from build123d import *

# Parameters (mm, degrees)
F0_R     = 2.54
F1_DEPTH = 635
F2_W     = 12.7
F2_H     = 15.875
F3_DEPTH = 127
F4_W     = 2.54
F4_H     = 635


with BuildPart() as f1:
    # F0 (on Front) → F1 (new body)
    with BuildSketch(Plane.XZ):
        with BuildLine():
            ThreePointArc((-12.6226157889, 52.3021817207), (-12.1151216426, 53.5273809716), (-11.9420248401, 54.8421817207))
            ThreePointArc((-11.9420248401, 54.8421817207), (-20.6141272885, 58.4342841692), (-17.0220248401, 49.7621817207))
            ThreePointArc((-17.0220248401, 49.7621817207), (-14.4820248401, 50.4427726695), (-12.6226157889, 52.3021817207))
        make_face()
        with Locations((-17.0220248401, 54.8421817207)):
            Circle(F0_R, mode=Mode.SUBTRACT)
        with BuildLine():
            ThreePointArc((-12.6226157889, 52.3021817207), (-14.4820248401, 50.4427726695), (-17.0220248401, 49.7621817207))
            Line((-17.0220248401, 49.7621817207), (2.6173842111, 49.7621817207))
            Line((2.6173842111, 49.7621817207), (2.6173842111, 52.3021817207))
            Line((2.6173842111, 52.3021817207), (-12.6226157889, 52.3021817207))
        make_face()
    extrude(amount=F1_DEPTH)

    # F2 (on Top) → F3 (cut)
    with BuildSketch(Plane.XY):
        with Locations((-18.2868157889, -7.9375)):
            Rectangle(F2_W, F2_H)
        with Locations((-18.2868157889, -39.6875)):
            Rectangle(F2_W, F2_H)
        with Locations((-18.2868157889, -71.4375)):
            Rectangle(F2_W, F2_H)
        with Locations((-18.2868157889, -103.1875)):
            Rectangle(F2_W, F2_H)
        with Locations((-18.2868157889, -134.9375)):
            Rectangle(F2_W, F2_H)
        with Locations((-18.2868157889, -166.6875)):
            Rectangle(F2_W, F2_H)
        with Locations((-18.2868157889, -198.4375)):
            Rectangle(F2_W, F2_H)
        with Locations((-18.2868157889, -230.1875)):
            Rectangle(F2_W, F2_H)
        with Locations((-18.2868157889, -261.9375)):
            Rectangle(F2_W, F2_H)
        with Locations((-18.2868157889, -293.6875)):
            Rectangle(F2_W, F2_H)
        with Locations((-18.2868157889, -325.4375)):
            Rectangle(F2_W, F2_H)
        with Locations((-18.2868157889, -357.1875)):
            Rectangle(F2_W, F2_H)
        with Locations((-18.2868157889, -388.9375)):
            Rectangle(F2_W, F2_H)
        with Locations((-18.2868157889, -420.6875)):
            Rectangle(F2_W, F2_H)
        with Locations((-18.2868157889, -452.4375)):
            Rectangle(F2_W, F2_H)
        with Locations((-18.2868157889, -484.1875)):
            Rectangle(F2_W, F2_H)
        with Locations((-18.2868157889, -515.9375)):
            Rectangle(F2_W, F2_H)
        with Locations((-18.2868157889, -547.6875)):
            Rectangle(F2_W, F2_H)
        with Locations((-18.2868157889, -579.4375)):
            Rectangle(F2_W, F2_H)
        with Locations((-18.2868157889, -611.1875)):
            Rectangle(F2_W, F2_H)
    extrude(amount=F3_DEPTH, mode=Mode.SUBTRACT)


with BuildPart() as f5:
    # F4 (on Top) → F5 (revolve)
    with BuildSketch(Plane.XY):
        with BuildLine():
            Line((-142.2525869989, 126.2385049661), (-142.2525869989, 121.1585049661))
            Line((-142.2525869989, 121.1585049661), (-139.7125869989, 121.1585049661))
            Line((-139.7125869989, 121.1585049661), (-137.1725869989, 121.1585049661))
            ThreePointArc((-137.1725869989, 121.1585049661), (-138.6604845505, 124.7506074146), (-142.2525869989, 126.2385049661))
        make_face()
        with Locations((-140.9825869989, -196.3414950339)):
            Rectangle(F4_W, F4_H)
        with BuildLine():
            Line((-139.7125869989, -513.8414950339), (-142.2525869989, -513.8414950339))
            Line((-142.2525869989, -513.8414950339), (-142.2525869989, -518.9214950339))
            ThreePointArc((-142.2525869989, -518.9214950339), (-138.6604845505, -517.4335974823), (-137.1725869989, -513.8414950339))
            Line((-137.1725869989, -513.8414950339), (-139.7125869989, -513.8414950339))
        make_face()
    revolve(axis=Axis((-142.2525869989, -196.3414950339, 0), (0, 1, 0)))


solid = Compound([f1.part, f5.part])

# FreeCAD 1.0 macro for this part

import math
import FreeCAD as App
import Part
import Sketcher

V = App.Vector
Q = App.Units.Quantity


def add_polygon(sketch, points):
    """Adds a closed chain of lines whose ends are joined by coincident constraints."""
    first, n = sketch.GeometryCount, len(points)
    for a, b in zip(points, points[1:] + points[:1]):
        sketch.addGeometry(Part.LineSegment(App.Vector(*a, 0), App.Vector(*b, 0)), False)
    for i in range(n):
        sketch.addConstraint(Sketcher.Constraint("Coincident", first + i, 2, first + (i + 1) % n, 1))

doc = App.newDocument("Part")
body = doc.addObject("PartDesign::Body", "Body")

sketch1 = body.newObject("Sketcher::SketchObject", "Sketch")
sketch1.AttachmentSupport = (doc.getObject("XZ_Plane"), [""])
sketch1.MapMode = "FlatFace"
sketch1.addGeometry(Part.ArcOfCircle(Part.Circle(V(-17, 54.8, 0), V(0, 0, 1), 5.1), math.radians(-30), math.radians(0)), False)
sketch1.addGeometry(Part.ArcOfCircle(Part.Circle(V(-17, 54.8, 0), V(0, 0, 1), 5.1), math.radians(0), math.radians(270)), False)
sketch1.addGeometry(Part.LineSegment(V(-17, 49.8, 0), V(2.6, 49.8, 0)), False)
sketch1.addGeometry(Part.LineSegment(V(2.6, 49.8, 0), V(2.6, 52.3, 0)), False)
sketch1.addGeometry(Part.LineSegment(V(2.6, 52.3, 0), V(-12.6, 52.3, 0)), False)
sketch1.addGeometry(Part.Circle(V(-17, 54.8, 0), V(0, 0, 1), 2.5), False)
sketch1.addConstraint(Sketcher.Constraint("Tangent", 0, 2, 1, 1))
sketch1.addConstraint(Sketcher.Constraint("Tangent", 1, 2, 2, 1))
sketch1.addConstraint(Sketcher.Constraint("Coincident", 2, 2, 3, 1))
sketch1.addConstraint(Sketcher.Constraint("Coincident", 3, 2, 4, 1))
sketch1.addConstraint(Sketcher.Constraint("Coincident", 4, 2, 0, 1))
sketch1.addConstraint(Sketcher.Constraint("Horizontal", 2))
sketch1.addConstraint(Sketcher.Constraint("Vertical", 3))
sketch1.addConstraint(Sketcher.Constraint("Horizontal", 4))
sketch1.addConstraint(Sketcher.Constraint("Coincident", 5, 3, 0, 3))
sketch1.addConstraint(Sketcher.Constraint("Equal", 0, 1))
sketch1.addConstraint(Sketcher.Constraint("Horizontal", 5, 3, 0, 2))
sketch1.addConstraint(Sketcher.Constraint("Diameter", 5, Q("0.2 in")))
sketch1.addConstraint(Sketcher.Constraint("Radius", 0, Q("0.2 in")))
sketch1.addConstraint(Sketcher.Constraint("DistanceX", 4, 2, 4, 1, Q("0.6 in")))
sketch1.addConstraint(Sketcher.Constraint("DistanceY", 3, 1, 3, 2, Q("0.1 in")))
sketch1.addConstraint(Sketcher.Constraint("DistanceY", -1, 1, 0, 3, 54.842182))
sketch1.addConstraint(Sketcher.Constraint("DistanceX", 0, 3, -1, 1, 17.022025))
pad1 = body.newObject("PartDesign::Pad", "Pad")
pad1.Profile = sketch1
pad1.Length = Q("25 in")

sketch2 = body.newObject("Sketcher::SketchObject", "Sketch001")
sketch2.AttachmentSupport = (doc.getObject("XY_Plane"), [""])
sketch2.MapMode = "FlatFace"
add_polygon(sketch2, [(-25, 0), (-25, -16), (-12, -16), (-12, 0)])
add_polygon(sketch2, [(-25, -32), (-25, -48), (-12, -48), (-12, -32)])
add_polygon(sketch2, [(-25, -64), (-25, -79), (-12, -79), (-12, -64)])
add_polygon(sketch2, [(-25, -95), (-25, -111), (-12, -111), (-12, -95)])
add_polygon(sketch2, [(-25, -127), (-25, -143), (-12, -143), (-12, -127)])
add_polygon(sketch2, [(-25, -159), (-25, -175), (-12, -175), (-12, -159)])
add_polygon(sketch2, [(-25, -190), (-25, -206), (-12, -206), (-12, -190)])
add_polygon(sketch2, [(-25, -222), (-25, -238), (-12, -238), (-12, -222)])
add_polygon(sketch2, [(-25, -254), (-25, -270), (-12, -270), (-12, -254)])
add_polygon(sketch2, [(-25, -286), (-25, -302), (-12, -302), (-12, -286)])
add_polygon(sketch2, [(-25, -318), (-25, -333), (-12, -333), (-12, -318)])
add_polygon(sketch2, [(-25, -349), (-25, -365), (-12, -365), (-12, -349)])
add_polygon(sketch2, [(-25, -381), (-25, -397), (-12, -397), (-12, -381)])
add_polygon(sketch2, [(-25, -413), (-25, -429), (-12, -429), (-12, -413)])
add_polygon(sketch2, [(-25, -444), (-25, -460), (-12, -460), (-12, -444)])
add_polygon(sketch2, [(-25, -476), (-25, -492), (-12, -492), (-12, -476)])
add_polygon(sketch2, [(-25, -508), (-25, -524), (-12, -524), (-12, -508)])
add_polygon(sketch2, [(-25, -540), (-25, -556), (-12, -556), (-12, -540)])
add_polygon(sketch2, [(-25, -572), (-25, -587), (-12, -587), (-12, -572)])
add_polygon(sketch2, [(-25, -603), (-25, -619), (-12, -619), (-12, -603)])
sketch2.addConstraint(Sketcher.Constraint("Vertical", 0))
sketch2.addConstraint(Sketcher.Constraint("Horizontal", 1))
sketch2.addConstraint(Sketcher.Constraint("Vertical", 2))
sketch2.addConstraint(Sketcher.Constraint("Horizontal", 3))
sketch2.addConstraint(Sketcher.Constraint("Vertical", 4))
sketch2.addConstraint(Sketcher.Constraint("Horizontal", 5))
sketch2.addConstraint(Sketcher.Constraint("Vertical", 6))
sketch2.addConstraint(Sketcher.Constraint("Horizontal", 7))
sketch2.addConstraint(Sketcher.Constraint("Vertical", 8))
sketch2.addConstraint(Sketcher.Constraint("Horizontal", 9))
sketch2.addConstraint(Sketcher.Constraint("Vertical", 10))
sketch2.addConstraint(Sketcher.Constraint("Horizontal", 11))
sketch2.addConstraint(Sketcher.Constraint("Vertical", 12))
sketch2.addConstraint(Sketcher.Constraint("Horizontal", 13))
sketch2.addConstraint(Sketcher.Constraint("Vertical", 14))
sketch2.addConstraint(Sketcher.Constraint("Horizontal", 15))
sketch2.addConstraint(Sketcher.Constraint("Vertical", 16))
sketch2.addConstraint(Sketcher.Constraint("Horizontal", 17))
sketch2.addConstraint(Sketcher.Constraint("Vertical", 18))
sketch2.addConstraint(Sketcher.Constraint("Horizontal", 19))
sketch2.addConstraint(Sketcher.Constraint("Vertical", 20))
sketch2.addConstraint(Sketcher.Constraint("Horizontal", 21))
sketch2.addConstraint(Sketcher.Constraint("Vertical", 22))
sketch2.addConstraint(Sketcher.Constraint("Horizontal", 23))
sketch2.addConstraint(Sketcher.Constraint("Vertical", 24))
sketch2.addConstraint(Sketcher.Constraint("Horizontal", 25))
sketch2.addConstraint(Sketcher.Constraint("Vertical", 26))
sketch2.addConstraint(Sketcher.Constraint("Horizontal", 27))
sketch2.addConstraint(Sketcher.Constraint("Vertical", 28))
sketch2.addConstraint(Sketcher.Constraint("Horizontal", 29))
sketch2.addConstraint(Sketcher.Constraint("Vertical", 30))
sketch2.addConstraint(Sketcher.Constraint("Horizontal", 31))
sketch2.addConstraint(Sketcher.Constraint("Vertical", 32))
sketch2.addConstraint(Sketcher.Constraint("Horizontal", 33))
sketch2.addConstraint(Sketcher.Constraint("Vertical", 34))
sketch2.addConstraint(Sketcher.Constraint("Horizontal", 35))
sketch2.addConstraint(Sketcher.Constraint("Vertical", 36))
sketch2.addConstraint(Sketcher.Constraint("Horizontal", 37))
sketch2.addConstraint(Sketcher.Constraint("Vertical", 38))
sketch2.addConstraint(Sketcher.Constraint("Horizontal", 39))
sketch2.addConstraint(Sketcher.Constraint("Vertical", 40))
sketch2.addConstraint(Sketcher.Constraint("Horizontal", 41))
sketch2.addConstraint(Sketcher.Constraint("Vertical", 42))
sketch2.addConstraint(Sketcher.Constraint("Horizontal", 43))
sketch2.addConstraint(Sketcher.Constraint("Vertical", 44))
sketch2.addConstraint(Sketcher.Constraint("Horizontal", 45))
sketch2.addConstraint(Sketcher.Constraint("Vertical", 46))
sketch2.addConstraint(Sketcher.Constraint("Horizontal", 47))
sketch2.addConstraint(Sketcher.Constraint("Vertical", 48))
sketch2.addConstraint(Sketcher.Constraint("Horizontal", 49))
sketch2.addConstraint(Sketcher.Constraint("Vertical", 50))
sketch2.addConstraint(Sketcher.Constraint("Horizontal", 51))
sketch2.addConstraint(Sketcher.Constraint("Vertical", 52))
sketch2.addConstraint(Sketcher.Constraint("Horizontal", 53))
sketch2.addConstraint(Sketcher.Constraint("Vertical", 54))
sketch2.addConstraint(Sketcher.Constraint("Horizontal", 55))
sketch2.addConstraint(Sketcher.Constraint("Vertical", 56))
sketch2.addConstraint(Sketcher.Constraint("Horizontal", 57))
sketch2.addConstraint(Sketcher.Constraint("Vertical", 58))
sketch2.addConstraint(Sketcher.Constraint("Horizontal", 59))
sketch2.addConstraint(Sketcher.Constraint("Vertical", 60))
sketch2.addConstraint(Sketcher.Constraint("Horizontal", 61))
sketch2.addConstraint(Sketcher.Constraint("Vertical", 62))
sketch2.addConstraint(Sketcher.Constraint("Horizontal", 63))
sketch2.addConstraint(Sketcher.Constraint("Vertical", 64))
sketch2.addConstraint(Sketcher.Constraint("Horizontal", 65))
sketch2.addConstraint(Sketcher.Constraint("Vertical", 66))
sketch2.addConstraint(Sketcher.Constraint("Horizontal", 67))
sketch2.addConstraint(Sketcher.Constraint("Vertical", 68))
sketch2.addConstraint(Sketcher.Constraint("Horizontal", 69))
sketch2.addConstraint(Sketcher.Constraint("Vertical", 70))
sketch2.addConstraint(Sketcher.Constraint("Horizontal", 71))
sketch2.addConstraint(Sketcher.Constraint("Vertical", 72))
sketch2.addConstraint(Sketcher.Constraint("Horizontal", 73))
sketch2.addConstraint(Sketcher.Constraint("Vertical", 74))
sketch2.addConstraint(Sketcher.Constraint("Horizontal", 75))
sketch2.addConstraint(Sketcher.Constraint("Vertical", 76))
sketch2.addConstraint(Sketcher.Constraint("Horizontal", 77))
sketch2.addConstraint(Sketcher.Constraint("Vertical", 78))
sketch2.addConstraint(Sketcher.Constraint("Horizontal", 79))
sketch2.addConstraint(Sketcher.Constraint("PointOnObject", 2, 2, -1))
sketch2.addConstraint(Sketcher.Constraint("Vertical", 3, 2, 4, 2))
sketch2.addConstraint(Sketcher.Constraint("Vertical", 2, 2, 5, 2))
sketch2.addConstraint(Sketcher.Constraint("Vertical", 7, 2, 8, 2))
sketch2.addConstraint(Sketcher.Constraint("Vertical", 6, 2, 9, 2))
sketch2.addConstraint(Sketcher.Constraint("Vertical", 11, 2, 12, 2))
sketch2.addConstraint(Sketcher.Constraint("Vertical", 10, 2, 13, 2))
sketch2.addConstraint(Sketcher.Constraint("Vertical", 15, 2, 16, 2))
sketch2.addConstraint(Sketcher.Constraint("Vertical", 14, 2, 17, 2))
sketch2.addConstraint(Sketcher.Constraint("Vertical", 19, 2, 20, 2))
sketch2.addConstraint(Sketcher.Constraint("Vertical", 18, 2, 21, 2))
sketch2.addConstraint(Sketcher.Constraint("Vertical", 23, 2, 24, 2))
sketch2.addConstraint(Sketcher.Constraint("Vertical", 22, 2, 25, 2))
sketch2.addConstraint(Sketcher.Constraint("Vertical", 27, 2, 28, 2))
sketch2.addConstraint(Sketcher.Constraint("Vertical", 26, 2, 29, 2))
sketch2.addConstraint(Sketcher.Constraint("Vertical", 31, 2, 32, 2))
sketch2.addConstraint(Sketcher.Constraint("Vertical", 30, 2, 33, 2))
sketch2.addConstraint(Sketcher.Constraint("Vertical", 35, 2, 36, 2))
sketch2.addConstraint(Sketcher.Constraint("Vertical", 34, 2, 37, 2))
sketch2.addConstraint(Sketcher.Constraint("Vertical", 39, 2, 40, 2))
sketch2.addConstraint(Sketcher.Constraint("Vertical", 38, 2, 41, 2))
sketch2.addConstraint(Sketcher.Constraint("Vertical", 43, 2, 44, 2))
sketch2.addConstraint(Sketcher.Constraint("Vertical", 42, 2, 45, 2))
sketch2.addConstraint(Sketcher.Constraint("Vertical", 47, 2, 48, 2))
sketch2.addConstraint(Sketcher.Constraint("Vertical", 46, 2, 49, 2))
sketch2.addConstraint(Sketcher.Constraint("Vertical", 51, 2, 52, 2))
sketch2.addConstraint(Sketcher.Constraint("Vertical", 50, 2, 53, 2))
sketch2.addConstraint(Sketcher.Constraint("Vertical", 55, 2, 56, 2))
sketch2.addConstraint(Sketcher.Constraint("Vertical", 54, 2, 57, 2))
sketch2.addConstraint(Sketcher.Constraint("Vertical", 59, 2, 60, 2))
sketch2.addConstraint(Sketcher.Constraint("Vertical", 58, 2, 61, 2))
sketch2.addConstraint(Sketcher.Constraint("Vertical", 63, 2, 64, 2))
sketch2.addConstraint(Sketcher.Constraint("Vertical", 62, 2, 65, 2))
sketch2.addConstraint(Sketcher.Constraint("Vertical", 67, 2, 68, 2))
sketch2.addConstraint(Sketcher.Constraint("Vertical", 66, 2, 69, 2))
sketch2.addConstraint(Sketcher.Constraint("Vertical", 71, 2, 72, 2))
sketch2.addConstraint(Sketcher.Constraint("Vertical", 70, 2, 73, 2))
sketch2.addConstraint(Sketcher.Constraint("Vertical", 75, 2, 76, 2))
sketch2.addConstraint(Sketcher.Constraint("Vertical", 74, 2, 77, 2))
sketch2.addConstraint(Sketcher.Constraint("Equal", 2, 4))
sketch2.addConstraint(Sketcher.Constraint("Equal", 6, 8))
sketch2.addConstraint(Sketcher.Constraint("Equal", 10, 12))
sketch2.addConstraint(Sketcher.Constraint("Equal", 14, 16))
sketch2.addConstraint(Sketcher.Constraint("Equal", 18, 20))
sketch2.addConstraint(Sketcher.Constraint("Equal", 22, 24))
sketch2.addConstraint(Sketcher.Constraint("Equal", 26, 28))
sketch2.addConstraint(Sketcher.Constraint("Equal", 30, 32))
sketch2.addConstraint(Sketcher.Constraint("Equal", 34, 36))
sketch2.addConstraint(Sketcher.Constraint("Equal", 38, 40))
sketch2.addConstraint(Sketcher.Constraint("Equal", 42, 44))
sketch2.addConstraint(Sketcher.Constraint("Equal", 46, 48))
sketch2.addConstraint(Sketcher.Constraint("Equal", 50, 52))
sketch2.addConstraint(Sketcher.Constraint("Equal", 54, 56))
sketch2.addConstraint(Sketcher.Constraint("Equal", 58, 60))
sketch2.addConstraint(Sketcher.Constraint("Equal", 62, 64))
sketch2.addConstraint(Sketcher.Constraint("Equal", 66, 68))
sketch2.addConstraint(Sketcher.Constraint("Equal", 70, 72))
sketch2.addConstraint(Sketcher.Constraint("Equal", 74, 76))
sketch2.addConstraint(Sketcher.Constraint("DistanceX", 1, 1, 1, 2, Q("0.5 in")))
sketch2.addConstraint(Sketcher.Constraint("DistanceY", 18, 2, -1, 1, Q("5 in")))
sketch2.addConstraint(Sketcher.Constraint("DistanceY", 34, 2, -1, 1, Q("10 in")))
sketch2.addConstraint(Sketcher.Constraint("DistanceY", 50, 2, -1, 1, Q("15 in")))
sketch2.addConstraint(Sketcher.Constraint("DistanceY", 66, 2, -1, 1, Q("20 in")))
sketch2.addConstraint(Sketcher.Constraint("DistanceY", 10, 2, -1, 1, Q("2.5 in")))
sketch2.addConstraint(Sketcher.Constraint("DistanceY", 26, 2, -1, 1, Q("7.5 in")))
sketch2.addConstraint(Sketcher.Constraint("DistanceY", 42, 2, -1, 1, Q("12.5 in")))
sketch2.addConstraint(Sketcher.Constraint("DistanceY", 58, 2, -1, 1, Q("17.5 in")))
sketch2.addConstraint(Sketcher.Constraint("DistanceY", 74, 2, -1, 1, Q("22.5 in")))
sketch2.addConstraint(Sketcher.Constraint("DistanceY", 0, 2, 0, 1, Q("0.625 in")))
sketch2.addConstraint(Sketcher.Constraint("DistanceY", 6, 2, -1, 1, Q("1.25 in")))
sketch2.addConstraint(Sketcher.Constraint("DistanceY", 14, 2, -1, 1, Q("3.75 in")))
sketch2.addConstraint(Sketcher.Constraint("DistanceY", 22, 2, -1, 1, Q("6.25 in")))
sketch2.addConstraint(Sketcher.Constraint("DistanceY", 30, 2, -1, 1, Q("8.75 in")))
sketch2.addConstraint(Sketcher.Constraint("DistanceY", 38, 2, -1, 1, Q("11.25 in")))
sketch2.addConstraint(Sketcher.Constraint("DistanceY", 46, 2, -1, 1, Q("13.75 in")))
sketch2.addConstraint(Sketcher.Constraint("DistanceY", 54, 2, -1, 1, Q("16.25 in")))
sketch2.addConstraint(Sketcher.Constraint("DistanceY", 62, 2, -1, 1, Q("18.75 in")))
sketch2.addConstraint(Sketcher.Constraint("DistanceY", 70, 2, -1, 1, Q("21.25 in")))
sketch2.addConstraint(Sketcher.Constraint("DistanceY", 78, 2, -1, 1, Q("23.75 in")))
sketch2.addConstraint(Sketcher.Constraint("DistanceX", 0, 2, -1, 1, 24.636816))
pocket1 = body.newObject("PartDesign::Pocket", "Pocket")
pocket1.Profile = sketch2
pocket1.Length = Q("5 in")
pocket1.Reversed = True
body2 = doc.addObject("PartDesign::Body", "Body001")

sketch3 = body2.newObject("Sketcher::SketchObject", "Sketch002")
sketch3.AttachmentSupport = (doc.getObject("XY_Plane001"), [""])
sketch3.MapMode = "FlatFace"
sketch3.addGeometry(Part.LineSegment(V(-142.3, 126.2, 0), V(-142.3, -518.9, 0)), False)
sketch3.addGeometry(Part.ArcOfCircle(Part.Circle(V(-142.3, -513.8, 0), V(0, 0, 1), 5.1), math.radians(-90), math.radians(0)), False)
sketch3.addGeometry(Part.LineSegment(V(-137.2, -513.8, 0), V(-139.7, -513.8, 0)), False)
sketch3.addGeometry(Part.LineSegment(V(-139.7, -513.8, 0), V(-139.7, 121.2, 0)), False)
sketch3.addGeometry(Part.LineSegment(V(-139.7, 121.2, 0), V(-137.2, 121.2, 0)), False)
sketch3.addGeometry(Part.ArcOfCircle(Part.Circle(V(-142.3, 121.2, 0), V(0, 0, 1), 5.1), math.radians(0), math.radians(90)), False)
sketch3.addGeometry(Part.LineSegment(V(-142.3, -518.9, 0), V(-142.3, 126.2, 0)), True)
sketch3.addConstraint(Sketcher.Constraint("Coincident", 0, 2, 1, 1))
sketch3.addConstraint(Sketcher.Constraint("Coincident", 1, 2, 2, 1))
sketch3.addConstraint(Sketcher.Constraint("Coincident", 2, 2, 3, 1))
sketch3.addConstraint(Sketcher.Constraint("Coincident", 3, 2, 4, 1))
sketch3.addConstraint(Sketcher.Constraint("Coincident", 4, 2, 5, 1))
sketch3.addConstraint(Sketcher.Constraint("Coincident", 5, 2, 0, 1))
sketch3.addConstraint(Sketcher.Constraint("Vertical", 0))
sketch3.addConstraint(Sketcher.Constraint("Horizontal", 2))
sketch3.addConstraint(Sketcher.Constraint("Vertical", 3))
sketch3.addConstraint(Sketcher.Constraint("Horizontal", 4))
sketch3.addConstraint(Sketcher.Constraint("Vertical", 6))
sketch3.addConstraint(Sketcher.Constraint("Coincident", 6, 1, 0, 2))
sketch3.addConstraint(Sketcher.Constraint("Equal", 1, 5))
sketch3.addConstraint(Sketcher.Constraint("Horizontal", 5, 3, 3, 2))
sketch3.addConstraint(Sketcher.Constraint("Vertical", 1, 3, 5, 3))
sketch3.addConstraint(Sketcher.Constraint("Vertical", 5, 3, 0, 2))
sketch3.addConstraint(Sketcher.Constraint("Equal", 0, 6))
sketch3.addConstraint(Sketcher.Constraint("Radius", 1, Q("0.2 in")))
sketch3.addConstraint(Sketcher.Constraint("DistanceY", 3, 1, 3, 2, Q("25 in")))
sketch3.addConstraint(Sketcher.Constraint("DistanceX", 2, 2, 2, 1, Q("0.1 in")))
sketch3.addConstraint(Sketcher.Constraint("DistanceY", 0, 2, 0, 1, Q("25.4 in")))
sketch3.addConstraint(Sketcher.Constraint("DistanceX", 1, 3, -1, 1, 142.252587))
sketch3.addConstraint(Sketcher.Constraint("DistanceY", 1, 3, -1, 1, 513.841495))
revolution = body2.newObject("PartDesign::Revolution", "Revolution")
revolution.Profile = sketch3
revolution.ReferenceAxis = (sketch3, ["Axis0"])
revolution.Angle = 360

doc.recompute()
